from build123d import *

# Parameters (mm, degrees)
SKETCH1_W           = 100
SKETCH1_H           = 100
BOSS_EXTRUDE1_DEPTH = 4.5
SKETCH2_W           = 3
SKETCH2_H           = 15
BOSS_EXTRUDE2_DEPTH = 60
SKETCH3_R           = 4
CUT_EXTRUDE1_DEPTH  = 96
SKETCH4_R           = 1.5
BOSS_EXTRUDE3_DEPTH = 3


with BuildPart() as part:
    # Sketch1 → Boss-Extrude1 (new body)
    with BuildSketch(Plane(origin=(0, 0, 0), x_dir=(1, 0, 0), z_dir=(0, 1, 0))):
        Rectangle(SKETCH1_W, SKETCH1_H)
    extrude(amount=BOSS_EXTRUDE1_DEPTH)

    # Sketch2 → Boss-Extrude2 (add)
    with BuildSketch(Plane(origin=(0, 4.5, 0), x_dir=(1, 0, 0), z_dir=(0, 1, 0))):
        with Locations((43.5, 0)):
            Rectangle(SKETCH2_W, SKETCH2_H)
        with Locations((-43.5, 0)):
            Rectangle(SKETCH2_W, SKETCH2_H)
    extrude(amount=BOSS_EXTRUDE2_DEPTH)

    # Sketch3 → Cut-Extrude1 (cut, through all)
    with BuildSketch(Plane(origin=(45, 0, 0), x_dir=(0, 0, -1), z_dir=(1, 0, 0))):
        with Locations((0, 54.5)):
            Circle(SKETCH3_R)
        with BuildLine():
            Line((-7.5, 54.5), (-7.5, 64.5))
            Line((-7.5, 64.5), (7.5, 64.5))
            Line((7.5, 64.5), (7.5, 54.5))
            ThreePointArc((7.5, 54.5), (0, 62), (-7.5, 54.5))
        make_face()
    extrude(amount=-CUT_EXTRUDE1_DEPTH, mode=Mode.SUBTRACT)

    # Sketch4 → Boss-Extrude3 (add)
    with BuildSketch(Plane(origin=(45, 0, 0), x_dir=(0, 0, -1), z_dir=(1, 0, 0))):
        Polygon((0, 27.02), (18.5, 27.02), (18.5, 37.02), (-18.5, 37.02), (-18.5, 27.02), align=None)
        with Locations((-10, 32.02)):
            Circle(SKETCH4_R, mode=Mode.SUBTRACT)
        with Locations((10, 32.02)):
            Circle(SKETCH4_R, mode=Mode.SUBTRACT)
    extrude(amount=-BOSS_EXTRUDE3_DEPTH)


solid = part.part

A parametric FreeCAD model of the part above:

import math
import FreeCAD as App
import Part
import Sketcher
from FreeCAD import Vector

doc = App.newDocument("Part")
body = doc.addObject("PartDesign::Body", "Body")

sketch1 = body.newObject("Sketcher::SketchObject", "Sketch")
sketch1.AttachmentSupport = (doc.getObject("XZ_Plane"), [""])
sketch1.MapMode = "FlatFace"
sketch1.addGeometry([
    Part.LineSegment(Vector(-50, -50, 0), Vector(-50, 50, 0)),
    Part.LineSegment(Vector(-50, 50, 0), Vector(50, 50, 0)),
    Part.LineSegment(Vector(50, 50, 0), Vector(50, -50, 0)),
    Part.LineSegment(Vector(50, -50, 0), Vector(-50, -50, 0)),
], False)
sketch1.addConstraint([
    Sketcher.Constraint("Coincident", 0, 2, 1, 1),
    Sketcher.Constraint("Coincident", 1, 2, 2, 1),
    Sketcher.Constraint("Coincident", 2, 2, 3, 1),
    Sketcher.Constraint("Coincident", 3, 2, 0, 1),
    Sketcher.Constraint("Vertical", 0),
    Sketcher.Constraint("Horizontal", 1),
    Sketcher.Constraint("Vertical", 2),
    Sketcher.Constraint("Horizontal", 3),
    Sketcher.Constraint("Symmetric", 0, 2, 2, 2, -1, 1),
    Sketcher.Constraint("Equal", 3, 0),
    Sketcher.Constraint("DistanceX", 1, 1, 1, 2, 100.0),
])
pad1 = body.newObject("PartDesign::Pad", "Pad")
pad1.Profile = sketch1
pad1.Length = 4.5
pad1.Reversed = True

sketch2 = body.newObject("Sketcher::SketchObject", "Sketch001")
sketch2.AttachmentSupport = (doc.getObject("XZ_Plane"), [""])
sketch2.MapMode = "FlatFace"
sketch2.AttachmentOffset = App.Placement(Vector(0, 0, -4.5), App.Rotation())
sketch2.addGeometry([
    Part.LineSegment(Vector(42, -7.5, 0), Vector(42, 7.5, 0)),
    Part.LineSegment(Vector(42, 7.5, 0), Vector(45, 7.5, 0)),
    Part.LineSegment(Vector(45, 7.5, 0), Vector(45, -7.5, 0)),
    Part.LineSegment(Vector(45, -7.5, 0), Vector(42, -7.5, 0)),
    Part.LineSegment(Vector(-45, -7.5, 0), Vector(-45, 7.5, 0)),
    Part.LineSegment(Vector(-45, 7.5, 0), Vector(-42, 7.5, 0)),
    Part.LineSegment(Vector(-42, 7.5, 0), Vector(-42, -7.5, 0)),
    Part.LineSegment(Vector(-42, -7.5, 0), Vector(-45, -7.5, 0)),
], False)
sketch2.addConstraint([
    Sketcher.Constraint("Coincident", 0, 2, 1, 1),
    Sketcher.Constraint("Coincident", 1, 2, 2, 1),
    Sketcher.Constraint("Coincident", 2, 2, 3, 1),
    Sketcher.Constraint("Coincident", 3, 2, 0, 1),
    Sketcher.Constraint("Coincident", 4, 2, 5, 1),
    Sketcher.Constraint("Coincident", 5, 2, 6, 1),
    Sketcher.Constraint("Coincident", 6, 2, 7, 1),
    Sketcher.Constraint("Coincident", 7, 2, 4, 1),
    Sketcher.Constraint("Vertical", 0),
    Sketcher.Constraint("Horizontal", 1),
    Sketcher.Constraint("Vertical", 2),
    Sketcher.Constraint("Horizontal", 3),
    Sketcher.Constraint("Vertical", 4),
    Sketcher.Constraint("Horizontal", 5),
    Sketcher.Constraint("Vertical", 6),
    Sketcher.Constraint("Horizontal", 7),
    Sketcher.Constraint("Symmetric", 2, 2, 4, 2, -1, 1),
    Sketcher.Constraint("Symmetric", 0, 2, 6, 2, -1, 1),
    Sketcher.Constraint("Horizontal", 1, 2, 4, 2),
    Sketcher.Constraint("DistanceX", 1, 1, 1, 2, 3.0),
    Sketcher.Constraint("DistanceY", 0, 1, 0, 2, 15.0),
    Sketcher.Constraint("DistanceX", -1, 1, 0, 2, 42.0),
])
pad2 = body.newObject("PartDesign::Pad", "Pad001")
pad2.Profile = sketch2
pad2.Length = 60
pad2.Reversed = True

sketch3 = body.newObject("Sketcher::SketchObject", "Sketch002")
sketch3.AttachmentSupport = (doc.getObject("YZ_Plane"), [""])
sketch3.MapMode = "FlatFace"
sketch3.AttachmentOffset = App.Placement(Vector(0, 0, 45), App.Rotation())
sketch3.addGeometry([
    Part.Circle(Vector(54.5, 0, 0), Vector(0, 0, 1), 4),
    Part.LineSegment(Vector(64.5, 7.5, 0), Vector(54.5, 7.5, 0)),
    Part.ArcOfCircle(Part.Circle(Vector(54.5, 0, 0), Vector(0, 0, 1), 7.5), math.radians(-90), math.radians(90)),
    Part.LineSegment(Vector(54.5, -7.5, 0), Vector(64.5, -7.5, 0)),
    Part.LineSegment(Vector(64.5, -7.5, 0), Vector(64.5, 7.5, 0)),
], False)
sketch3.addConstraint([
    Sketcher.Constraint("Tangent", 1, 2, 2, 2),
    Sketcher.Constraint("Tangent", 2, 1, 3, 1),
    Sketcher.Constraint("Coincident", 3, 2, 4, 1),
    Sketcher.Constraint("Coincident", 4, 2, 1, 1),
    Sketcher.Constraint("Horizontal", 1),
    Sketcher.Constraint("Horizontal", 3),
    Sketcher.Constraint("Vertical", 4),
    Sketcher.Constraint("Coincident", 2, 3, 0, 3),
    Sketcher.Constraint("PointOnObject", 0, 3, -1),
    Sketcher.Constraint("Diameter", 0, 8.0),
    Sketcher.Constraint("Radius", 2, 7.5),
    Sketcher.Constraint("DistanceX", 1, 2, 1, 1, 10.0),
    Sketcher.Constraint("DistanceX", -1, 1, 0, 3, 54.5),
])
pocket1 = body.newObject("PartDesign::Pocket", "Pocket")
pocket1.Profile = sketch3
pocket1.Type = "ThroughAll"

sketch4 = body.newObject("Sketcher::SketchObject", "Sketch003")
sketch4.AttachmentSupport = (doc.getObject("YZ_Plane"), [""])
sketch4.MapMode = "FlatFace"
sketch4.AttachmentOffset = App.Placement(Vector(0, 0, 45), App.Rotation())
sketch4.addGeometry([
    Part.LineSegment(Vector(27, -18.5, 0), Vector(37, -18.5, 0)),
    Part.LineSegment(Vector(37, -18.5, 0), Vector(37, 18.5, 0)),
    Part.LineSegment(Vector(37, 18.5, 0), Vector(27, 18.5, 0)),
    Part.LineSegment(Vector(27, 18.5, 0), Vector(27, -18.5, 0)),
    Part.Circle(Vector(32, 10, 0), Vector(0, 0, 1), 1.5),
    Part.Circle(Vector(32, -10, 0), Vector(0, 0, 1), 1.5),
], False)
sketch4.addConstraint([
    Sketcher.Constraint("Coincident", 0, 2, 1, 1),
    Sketcher.Constraint("Coincident", 1, 2, 2, 1),
    Sketcher.Constraint("Coincident", 2, 2, 3, 1),
    Sketcher.Constraint("Coincident", 3, 2, 0, 1),
    Sketcher.Constraint("Horizontal", 0),
    Sketcher.Constraint("Vertical", 1),
    Sketcher.Constraint("Horizontal", 2),
    Sketcher.Constraint("Vertical", 3),
    Sketcher.Constraint("Equal", 4, 5),
    Sketcher.Constraint("Symmetric", 4, 3, 5, 3, -1),
    Sketcher.Constraint("Diameter", 4, 3.0),
    Sketcher.Constraint("DistanceX", 0, 1, 0, 2, 10.0),
    Sketcher.Constraint("DistanceY", 1, 1, 1, 2, 37.0),
    Sketcher.Constraint("DistanceY", -1, 1, 4, 3, 10.0),
    Sketcher.Constraint("DistanceX", 5, 3, 0, 2, 5.0),
    Sketcher.Constraint("DistanceY", 0, 2, -1, 1, 18.5),
    Sketcher.Constraint("DistanceX", -1, 1, 4, 3, 32.02),
])
pad3 = body.newObject("PartDesign::Pad", "Pad002")
pad3.Profile = sketch4
pad3.Length = 3
pad3.Reversed = True

doc.recompute()
